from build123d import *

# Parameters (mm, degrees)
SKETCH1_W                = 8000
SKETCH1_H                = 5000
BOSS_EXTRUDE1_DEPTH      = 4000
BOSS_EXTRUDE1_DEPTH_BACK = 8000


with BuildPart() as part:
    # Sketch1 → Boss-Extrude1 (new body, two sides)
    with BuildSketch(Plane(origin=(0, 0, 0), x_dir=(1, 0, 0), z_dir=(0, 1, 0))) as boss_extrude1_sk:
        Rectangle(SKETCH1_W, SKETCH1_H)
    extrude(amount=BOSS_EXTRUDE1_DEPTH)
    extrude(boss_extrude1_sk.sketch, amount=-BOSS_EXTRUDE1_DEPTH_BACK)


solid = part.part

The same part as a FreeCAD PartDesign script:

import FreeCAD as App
import Part
import Sketcher

V = App.Vector


def add_polygon(sketch, points):
    """Adds a closed chain of lines whose ends are joined by coincident constraints."""
    first, n = sketch.GeometryCount, len(points)
    for a, b in zip(points, points[1:] + points[:1]):
        sketch.addGeometry(Part.LineSegment(App.Vector(*a, 0), App.Vector(*b, 0)), False)
    for i in range(n):
        sketch.addConstraint(Sketcher.Constraint("Coincident", first + i, 2, first + (i + 1) % n, 1))

doc = App.newDocument("Part")
params = doc.addObject("Spreadsheet::Sheet", "Params")
for row, (alias, value) in enumerate([
    ("sketch1_width", "8000 mm"),
    ("sketch1_height", "5000 mm"),
    ("pad1_length", "4000 mm"),
    ("pad1_length2", "8000 mm"),
], start=1):
    params.set(f"A{row}", alias)
    params.set(f"B{row}", "=" + value)
    params.setAlias(f"B{row}", alias)

body = doc.addObject("PartDesign::Body", "Body")

sketch1 = body.newObject("Sketcher::SketchObject", "Sketch")
sketch1.AttachmentSupport = (doc.getObject("XZ_Plane"), [""])
sketch1.MapMode = "FlatFace"
add_polygon(sketch1, [(-4000, -2500), (-4000, 2500), (4000, 2500), (4000, -2500)])
sketch1.addConstraint([
    Sketcher.Constraint("Vertical", 0),
    Sketcher.Constraint("Horizontal", 1),
    Sketcher.Constraint("Vertical", 2),
    Sketcher.Constraint("Horizontal", 3),
    Sketcher.Constraint("Symmetric", 0, 2, 2, 2, -1, 1),
    Sketcher.Constraint("DistanceX", 1, 1, 1, 2, 8000.0),
    Sketcher.Constraint("DistanceY", 0, 1, 0, 2, 5000.0),
])
sketch1.setExpression("Constraints[9]", "Params.sketch1_width")
sketch1.setExpression("Constraints[10]", "Params.sketch1_height")
pad1 = body.newObject("PartDesign::Pad", "Pad")
pad1.Profile = sketch1
pad1.Type = "TwoLengths"
pad1.setExpression("Length", "Params.pad1_length")
pad1.setExpression("Length2", "Params.pad1_length2")
pad1.Reversed = True

doc.recompute()
